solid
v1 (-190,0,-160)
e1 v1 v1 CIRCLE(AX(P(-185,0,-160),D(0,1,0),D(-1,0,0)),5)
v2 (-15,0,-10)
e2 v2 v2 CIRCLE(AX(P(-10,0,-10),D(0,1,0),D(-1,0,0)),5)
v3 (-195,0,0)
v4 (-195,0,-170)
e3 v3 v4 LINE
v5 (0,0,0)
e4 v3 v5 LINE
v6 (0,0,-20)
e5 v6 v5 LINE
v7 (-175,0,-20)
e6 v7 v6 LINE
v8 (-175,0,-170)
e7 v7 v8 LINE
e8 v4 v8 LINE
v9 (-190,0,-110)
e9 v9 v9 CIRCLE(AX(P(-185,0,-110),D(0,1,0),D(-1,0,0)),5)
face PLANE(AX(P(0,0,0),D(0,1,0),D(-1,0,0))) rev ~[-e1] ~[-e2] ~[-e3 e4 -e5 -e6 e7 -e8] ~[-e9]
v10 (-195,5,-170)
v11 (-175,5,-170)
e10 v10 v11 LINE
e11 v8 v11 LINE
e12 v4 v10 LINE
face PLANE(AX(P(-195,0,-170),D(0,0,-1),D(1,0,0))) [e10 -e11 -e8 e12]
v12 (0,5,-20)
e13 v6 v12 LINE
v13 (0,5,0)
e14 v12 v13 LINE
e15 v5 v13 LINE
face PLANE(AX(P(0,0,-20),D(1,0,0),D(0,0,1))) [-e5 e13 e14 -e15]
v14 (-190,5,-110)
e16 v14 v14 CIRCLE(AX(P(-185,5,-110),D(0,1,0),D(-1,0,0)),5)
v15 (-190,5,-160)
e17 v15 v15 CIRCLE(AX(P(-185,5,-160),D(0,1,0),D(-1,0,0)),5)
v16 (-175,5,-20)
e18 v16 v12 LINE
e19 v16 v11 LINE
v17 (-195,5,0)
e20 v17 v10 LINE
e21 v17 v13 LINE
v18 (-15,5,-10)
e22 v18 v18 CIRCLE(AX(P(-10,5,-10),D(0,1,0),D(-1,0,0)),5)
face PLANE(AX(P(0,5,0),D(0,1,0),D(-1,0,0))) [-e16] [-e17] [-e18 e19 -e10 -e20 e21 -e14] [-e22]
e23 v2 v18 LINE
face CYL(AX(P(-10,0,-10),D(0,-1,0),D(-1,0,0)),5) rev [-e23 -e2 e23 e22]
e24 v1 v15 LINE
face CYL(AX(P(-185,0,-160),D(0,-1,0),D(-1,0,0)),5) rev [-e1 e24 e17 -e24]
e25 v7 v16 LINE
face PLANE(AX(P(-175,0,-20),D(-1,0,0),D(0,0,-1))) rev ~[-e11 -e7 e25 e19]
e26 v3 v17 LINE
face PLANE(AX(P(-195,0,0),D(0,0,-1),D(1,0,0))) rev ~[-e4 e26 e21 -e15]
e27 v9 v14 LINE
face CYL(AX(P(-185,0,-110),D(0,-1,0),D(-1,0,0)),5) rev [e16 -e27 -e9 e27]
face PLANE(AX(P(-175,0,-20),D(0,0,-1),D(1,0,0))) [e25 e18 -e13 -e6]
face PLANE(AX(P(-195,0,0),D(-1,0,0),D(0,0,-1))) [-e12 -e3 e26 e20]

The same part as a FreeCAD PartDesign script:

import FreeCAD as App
import Part
import Sketcher
Q = App.Units.Quantity

doc = App.newDocument("Part")
body = doc.addObject("PartDesign::Body", "Body")

# Sketch on XZ plane
sketch1 = body.newObject("Sketcher::SketchObject", "Sketch")
sketch1.AttachmentSupport = (doc.getObject("XZ_Plane"), [""])
sketch1.MapMode = "FlatFace"
sketch1.addGeometry(Part.LineSegment(App.Vector(-195, -170, 0), App.Vector(-195, 0, 0)), False)
sketch1.addGeometry(Part.LineSegment(App.Vector(-195, 0, 0), App.Vector(0, 0, 0)), False)
sketch1.addGeometry(Part.LineSegment(App.Vector(0, 0, 0), App.Vector(0, -20, 0)), False)
sketch1.addGeometry(Part.LineSegment(App.Vector(0, -20, 0), App.Vector(-175, -20, 0)), False)
sketch1.addGeometry(Part.LineSegment(App.Vector(-175, -20, 0), App.Vector(-175, -170, 0)), False)
sketch1.addGeometry(Part.LineSegment(App.Vector(-175, -170, 0), App.Vector(-195, -170, 0)), False)
sketch1.addGeometry(Part.Circle(App.Vector(-185, -160, 0), App.Vector(0, 0, 1), 5), False)
sketch1.addGeometry(Part.Circle(App.Vector(-185, -110, 0), App.Vector(0, 0, 1), 5), False)
sketch1.addGeometry(Part.Circle(App.Vector(-10, -10, 0), App.Vector(0, 0, 1), 5), False)
sketch1.addConstraint(Sketcher.Constraint("Coincident", 0, 2, 1, 1))
sketch1.addConstraint(Sketcher.Constraint("Coincident", 1, 2, 2, 1))
sketch1.addConstraint(Sketcher.Constraint("Coincident", 2, 2, 3, 1))
sketch1.addConstraint(Sketcher.Constraint("Coincident", 3, 2, 4, 1))
sketch1.addConstraint(Sketcher.Constraint("Coincident", 4, 2, 5, 1))
sketch1.addConstraint(Sketcher.Constraint("Coincident", 5, 2, 0, 1))
sketch1.addConstraint(Sketcher.Constraint("Vertical", 0))
sketch1.addConstraint(Sketcher.Constraint("Horizontal", 1))
sketch1.addConstraint(Sketcher.Constraint("Vertical", 2))
sketch1.addConstraint(Sketcher.Constraint("Horizontal", 3))
sketch1.addConstraint(Sketcher.Constraint("Vertical", 4))
sketch1.addConstraint(Sketcher.Constraint("Horizontal", 5))
sketch1.addConstraint(Sketcher.Constraint("Coincident", 1, 2, -1, 1))
sketch1.addConstraint(Sketcher.Constraint("Equal", 6, 7))
sketch1.addConstraint(Sketcher.Constraint("Equal", 7, 8))
sketch1.addConstraint(Sketcher.Constraint("Vertical", 6, 3, 7, 3))
sketch1.addConstraint(Sketcher.Constraint("Equal", 5, 2))
sketch1.addConstraint(Sketcher.Constraint("Diameter", 6, Q("10 mm")))
sketch1.addConstraint(Sketcher.Constraint("DistanceX", 1, 1, 1, 2, Q("195 mm")))
sketch1.addConstraint(Sketcher.Constraint("DistanceX", 5, 2, 5, 1, Q("20 mm")))
sketch1.addConstraint(Sketcher.Constraint("DistanceY", 0, 1, 0, 2, Q("170 mm")))
sketch1.addConstraint(Sketcher.Constraint("DistanceX", 8, 3, -1, 1, Q("10 mm")))
sketch1.addConstraint(Sketcher.Constraint("DistanceY", 8, 3, -1, 1, Q("10 mm")))
sketch1.addConstraint(Sketcher.Constraint("DistanceX", 0, 2, 7, 3, Q("10 mm")))
sketch1.addConstraint(Sketcher.Constraint("DistanceY", 4, 2, 6, 3, Q("10 mm")))
sketch1.addConstraint(Sketcher.Constraint("DistanceY", 4, 2, 7, 3, Q("60 mm")))
pad1 = body.newObject("PartDesign::Pad", "Pad")
pad1.Profile = sketch1
pad1.Length = 5
pad1.Reversed = True

doc.recompute()
